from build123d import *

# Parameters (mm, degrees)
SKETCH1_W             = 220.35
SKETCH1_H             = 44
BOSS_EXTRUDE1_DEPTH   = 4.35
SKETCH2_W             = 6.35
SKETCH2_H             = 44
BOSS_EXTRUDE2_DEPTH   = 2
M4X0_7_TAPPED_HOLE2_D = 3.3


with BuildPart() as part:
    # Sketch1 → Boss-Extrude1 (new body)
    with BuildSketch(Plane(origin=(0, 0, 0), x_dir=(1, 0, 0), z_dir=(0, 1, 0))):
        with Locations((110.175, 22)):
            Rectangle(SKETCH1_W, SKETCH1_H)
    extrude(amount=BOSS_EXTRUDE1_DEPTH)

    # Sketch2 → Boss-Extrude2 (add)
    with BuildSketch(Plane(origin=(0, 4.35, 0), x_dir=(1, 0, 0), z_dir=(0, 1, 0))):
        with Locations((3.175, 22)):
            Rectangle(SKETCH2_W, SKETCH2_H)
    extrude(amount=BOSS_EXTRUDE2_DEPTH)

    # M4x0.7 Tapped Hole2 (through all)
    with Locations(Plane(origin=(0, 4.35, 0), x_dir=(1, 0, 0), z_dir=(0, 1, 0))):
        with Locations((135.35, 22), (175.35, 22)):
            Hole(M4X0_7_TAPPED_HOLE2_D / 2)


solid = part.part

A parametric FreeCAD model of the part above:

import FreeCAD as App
import Part
import Sketcher

V = App.Vector

doc = App.newDocument("Part")
body = doc.addObject("PartDesign::Body", "Body")

sketch1 = doc.addObject("Sketcher::SketchObject", "Sketch")
body.addObject(sketch1)
sketch1.AttachmentSupport = (doc.XZ_Plane, [""])
sketch1.MapMode = "FlatFace"
sketch1.addGeometry([
    Part.LineSegment(V(0, -44, 0), V(0, 0, 0)),
    Part.LineSegment(V(0, 0, 0), V(220, 0, 0)),
    Part.LineSegment(V(220, 0, 0), V(220, -44, 0)),
    Part.LineSegment(V(220, -44, 0), V(0, -44, 0)),
], False)
sketch1.addConstraint([
    Sketcher.Constraint("Coincident", 0, 2, 1, 1),
    Sketcher.Constraint("Coincident", 1, 2, 2, 1),
    Sketcher.Constraint("Coincident", 2, 2, 3, 1),
    Sketcher.Constraint("Coincident", 3, 2, 0, 1),
    Sketcher.Constraint("Vertical", 0),
    Sketcher.Constraint("Horizontal", 1),
    Sketcher.Constraint("Vertical", 2),
    Sketcher.Constraint("Horizontal", 3),
    Sketcher.Constraint("Coincident", 0, 2, -1, 1),
    Sketcher.Constraint("DistanceY", 0, 1, 0, 2, 44.0),
    Sketcher.Constraint("DistanceX", 1, 1, 1, 2, 220.35),
])
pad1 = doc.addObject("PartDesign::Pad", "Pad")
body.addObject(pad1)
pad1.Profile = sketch1
pad1.Length = 4.35
pad1.Reversed = True

sketch2 = doc.addObject("Sketcher::SketchObject", "Sketch001")
body.addObject(sketch2)
sketch2.AttachmentSupport = (doc.XZ_Plane, [""])
sketch2.MapMode = "FlatFace"
sketch2.AttachmentOffset = App.Placement(V(0, 0, -4.35), App.Rotation())
sketch2.addGeometry([
    Part.LineSegment(V(0, -44, 0), V(0, 0, 0)),
    Part.LineSegment(V(0, 0, 0), V(6, 0, 0)),
    Part.LineSegment(V(6, 0, 0), V(6, -44, 0)),
    Part.LineSegment(V(6, -44, 0), V(0, -44, 0)),
], False)
sketch2.addConstraint([
    Sketcher.Constraint("Coincident", 0, 2, 1, 1),
    Sketcher.Constraint("Coincident", 1, 2, 2, 1),
    Sketcher.Constraint("Coincident", 2, 2, 3, 1),
    Sketcher.Constraint("Coincident", 3, 2, 0, 1),
    Sketcher.Constraint("Vertical", 0),
    Sketcher.Constraint("Horizontal", 1),
    Sketcher.Constraint("Vertical", 2),
    Sketcher.Constraint("Horizontal", 3),
    Sketcher.Constraint("Coincident", 0, 2, -1, 1),
    Sketcher.Constraint("DistanceY", 0, 1, 0, 2, 44.0),
    Sketcher.Constraint("DistanceX", 1, 1, 1, 2, 6.35),
])
pad2 = doc.addObject("PartDesign::Pad", "Pad001")
body.addObject(pad2)
pad2.Profile = sketch2
pad2.Length = 2
pad2.Reversed = True

sketch3 = doc.addObject("Sketcher::SketchObject", "Sketch002")
body.addObject(sketch3)
sketch3.AttachmentSupport = (doc.XZ_Plane, [""])
sketch3.MapMode = "FlatFace"
sketch3.AttachmentOffset = App.Placement(V(0, 0, -4.35), App.Rotation())
sketch3.addGeometry([
    Part.Circle(V(135.3, -22, 0), V(0, 0, 1), 1.6),
    Part.Circle(V(175.3, -22, 0), V(0, 0, 1), 1.6),
], False)
sketch3.addConstraint([
    Sketcher.Constraint("Equal", 0, 1),
    Sketcher.Constraint("Horizontal", 0, 3, 1, 3),
    Sketcher.Constraint("Diameter", 0, 3.3),
    Sketcher.Constraint("DistanceY", 0, 3, -1, 1, 22.0),
    Sketcher.Constraint("DistanceX", 0, 3, 1, 3, 40.0),
    Sketcher.Constraint("DistanceX", -1, 1, 0, 3, 135.35),
])
doc.recompute()
hole = doc.addObject("PartDesign::Hole", "Hole")
body.addObject(hole)
hole.Profile = sketch3
hole.ThreadType = "None"
hole.Diameter = 3.3
hole.DepthType = "ThroughAll"
hole.Reversed = True

doc.recompute()
